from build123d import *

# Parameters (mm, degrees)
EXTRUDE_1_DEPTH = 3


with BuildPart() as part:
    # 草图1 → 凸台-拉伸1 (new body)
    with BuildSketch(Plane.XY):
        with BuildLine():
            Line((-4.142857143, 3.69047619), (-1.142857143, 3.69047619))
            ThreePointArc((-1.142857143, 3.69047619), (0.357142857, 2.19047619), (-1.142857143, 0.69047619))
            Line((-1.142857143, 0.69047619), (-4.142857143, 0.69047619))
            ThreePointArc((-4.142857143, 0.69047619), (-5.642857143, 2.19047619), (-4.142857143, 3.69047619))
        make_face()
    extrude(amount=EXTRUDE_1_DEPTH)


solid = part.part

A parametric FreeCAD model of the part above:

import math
import FreeCAD as App
import Part
import Sketcher

V = App.Vector

doc = App.newDocument("Part")
params = doc.addObject("Spreadsheet::Sheet", "Params")
for row, (alias, value) in enumerate([
    ("sketch1_radius", "1.5 mm"),
    ("sketch1_width", "3 mm"),
    ("pad1_length", "3 mm"),
], start=1):
    params.set(f"A{row}", alias)
    params.set(f"B{row}", "=" + value)
    params.setAlias(f"B{row}", alias)

body = doc.addObject("PartDesign::Body", "Body")

# Sketch on XY plane
sketch1 = body.newObject("Sketcher::SketchObject", "Sketch")
sketch1.AttachmentSupport = (doc.getObject("XY_Plane"), [""])
sketch1.MapMode = "FlatFace"
sketch1.addGeometry(Part.LineSegment(V(-1.1, 3.7, 0), V(-4.1, 3.7, 0)), False)
sketch1.addGeometry(Part.ArcOfCircle(Part.Circle(V(-4.1, 2.2, 0), V(0, 0, 1), 1.5), math.radians(90), math.radians(270)), False)
sketch1.addGeometry(Part.LineSegment(V(-4.1, 0.7, 0), V(-1.1, 0.7, 0)), False)
sketch1.addGeometry(Part.ArcOfCircle(Part.Circle(V(-1.1, 2.2, 0), V(0, 0, 1), 1.5), math.radians(-90), math.radians(90)), False)
sketch1.addConstraint(Sketcher.Constraint("Tangent", 0, 2, 1, 1))
sketch1.addConstraint(Sketcher.Constraint("Tangent", 1, 2, 2, 1))
sketch1.addConstraint(Sketcher.Constraint("Tangent", 2, 2, 3, 1))
sketch1.addConstraint(Sketcher.Constraint("Tangent", 3, 2, 0, 1))
sketch1.addConstraint(Sketcher.Constraint("Horizontal", 0))
sketch1.addConstraint(Sketcher.Constraint("Horizontal", 2))
sketch1.addConstraint(Sketcher.Constraint("Radius", 1, 1.5))
sketch1.addConstraint(Sketcher.Constraint("DistanceX", 0, 2, 0, 1, 3.0))
sketch1.addConstraint(Sketcher.Constraint("DistanceX", 1, 3, -1, 1, 4.142857))
sketch1.addConstraint(Sketcher.Constraint("DistanceY", -1, 1, 1, 3, 2.190476))
sketch1.setExpression("Constraints[6]", "Params.sketch1_radius")
sketch1.setExpression("Constraints[7]", "Params.sketch1_width")
pad1 = body.newObject("PartDesign::Pad", "Pad")
pad1.Profile = sketch1
pad1.setExpression("Length", "Params.pad1_length")

doc.recompute()
